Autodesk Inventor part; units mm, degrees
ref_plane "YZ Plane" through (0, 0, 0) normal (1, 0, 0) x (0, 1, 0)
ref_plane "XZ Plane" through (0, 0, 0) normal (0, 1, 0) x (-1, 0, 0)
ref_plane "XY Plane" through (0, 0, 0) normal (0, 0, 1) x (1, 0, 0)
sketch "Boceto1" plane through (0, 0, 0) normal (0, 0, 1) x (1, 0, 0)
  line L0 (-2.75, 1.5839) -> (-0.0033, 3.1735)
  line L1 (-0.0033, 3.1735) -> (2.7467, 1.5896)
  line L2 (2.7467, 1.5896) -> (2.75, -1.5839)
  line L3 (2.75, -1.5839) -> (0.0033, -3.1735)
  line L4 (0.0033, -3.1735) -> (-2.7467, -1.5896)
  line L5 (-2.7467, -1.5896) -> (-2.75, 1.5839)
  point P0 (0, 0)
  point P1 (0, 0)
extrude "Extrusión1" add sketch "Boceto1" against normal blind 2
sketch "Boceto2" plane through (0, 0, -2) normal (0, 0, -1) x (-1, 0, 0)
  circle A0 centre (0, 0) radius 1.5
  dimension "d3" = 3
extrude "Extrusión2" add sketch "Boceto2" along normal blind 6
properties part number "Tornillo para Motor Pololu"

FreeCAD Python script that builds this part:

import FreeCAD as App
import Part
import Sketcher
Q = App.Units.Quantity


def add_polygon(sketch, points):
    """Adds a closed chain of lines whose ends are joined by coincident constraints."""
    first, n = sketch.GeometryCount, len(points)
    for a, b in zip(points, points[1:] + points[:1]):
        sketch.addGeometry(Part.LineSegment(App.Vector(*a, 0), App.Vector(*b, 0)), False)
    for i in range(n):
        sketch.addConstraint(Sketcher.Constraint("Coincident", first + i, 2, first + (i + 1) % n, 1))

doc = App.newDocument("Part")
params = doc.addObject("Spreadsheet::Sheet", "Params")
for row, (alias, value) in enumerate([
    ("pad1_length", "2 mm"),
    ("sketch2_diameter", "3 mm"),
    ("pad2_length", "6 mm"),
], start=1):
    params.set(f"A{row}", alias)
    params.set(f"B{row}", "=" + value)
    params.setAlias(f"B{row}", alias)

body = doc.addObject("PartDesign::Body", "Body")

# Sketch on XY plane
sketch1 = body.newObject("Sketcher::SketchObject", "Sketch")
sketch1.AttachmentSupport = (doc.getObject("XY_Plane"), [""])
sketch1.MapMode = "FlatFace"
add_polygon(sketch1, [(0, 3.2), (-2.8, 1.6), (-2.7, -1.6), (0, -3.2), (2.8, -1.6), (2.7, 1.6)])  # lines 0-5
sketch1.addConstraint(Sketcher.Constraint("Symmetric", 0, 2, 3, 2, -1, 1))
sketch1.addConstraint(Sketcher.Constraint("Symmetric", 1, 2, 4, 2, -1, 1))
sketch1.addConstraint(Sketcher.Constraint("Symmetric", 2, 2, 5, 2, -1, 1))
sketch1.addConstraint(Sketcher.Constraint("Equal", 0, 1))
sketch1.addConstraint(Sketcher.Constraint("Equal", 1, 2))
sketch1.addConstraint(Sketcher.Constraint("Angle", 0, Q("-149.9407 deg")))
sketch1.addConstraint(Sketcher.Constraint("Angle", 1, Q("-89.9404 deg")))
sketch1.addConstraint(Sketcher.Constraint("Angle", 2, Q("-29.9404 deg")))
sketch1.addConstraint(Sketcher.Constraint("DistanceX", 0, 2, 3, 2, 5.5))
pad1 = body.newObject("PartDesign::Pad", "Pad")
pad1.Profile = sketch1
pad1.setExpression("Length", "Params.pad1_length")
pad1.Reversed = True

# Sketch on XY plane
sketch2 = body.newObject("Sketcher::SketchObject", "Sketch001")
sketch2.AttachmentSupport = (doc.getObject("XY_Plane"), [""])
sketch2.MapMode = "FlatFace"
sketch2.AttachmentOffset = App.Placement(App.Vector(0, 0, -2), App.Rotation())
sketch2.addGeometry(Part.Circle(App.Vector(0, 0, 0), App.Vector(0, 0, 1), 1.5), False)
sketch2.addConstraint(Sketcher.Constraint("Coincident", 0, 3, -1, 1))
sketch2.addConstraint(Sketcher.Constraint("Diameter", 0, 3.0))
sketch2.setExpression("Constraints[1]", "Params.sketch2_diameter")
pad2 = body.newObject("PartDesign::Pad", "Pad001")
pad2.Profile = sketch2
pad2.setExpression("Length", "Params.pad2_length")
pad2.Reversed = True

doc.recompute()
